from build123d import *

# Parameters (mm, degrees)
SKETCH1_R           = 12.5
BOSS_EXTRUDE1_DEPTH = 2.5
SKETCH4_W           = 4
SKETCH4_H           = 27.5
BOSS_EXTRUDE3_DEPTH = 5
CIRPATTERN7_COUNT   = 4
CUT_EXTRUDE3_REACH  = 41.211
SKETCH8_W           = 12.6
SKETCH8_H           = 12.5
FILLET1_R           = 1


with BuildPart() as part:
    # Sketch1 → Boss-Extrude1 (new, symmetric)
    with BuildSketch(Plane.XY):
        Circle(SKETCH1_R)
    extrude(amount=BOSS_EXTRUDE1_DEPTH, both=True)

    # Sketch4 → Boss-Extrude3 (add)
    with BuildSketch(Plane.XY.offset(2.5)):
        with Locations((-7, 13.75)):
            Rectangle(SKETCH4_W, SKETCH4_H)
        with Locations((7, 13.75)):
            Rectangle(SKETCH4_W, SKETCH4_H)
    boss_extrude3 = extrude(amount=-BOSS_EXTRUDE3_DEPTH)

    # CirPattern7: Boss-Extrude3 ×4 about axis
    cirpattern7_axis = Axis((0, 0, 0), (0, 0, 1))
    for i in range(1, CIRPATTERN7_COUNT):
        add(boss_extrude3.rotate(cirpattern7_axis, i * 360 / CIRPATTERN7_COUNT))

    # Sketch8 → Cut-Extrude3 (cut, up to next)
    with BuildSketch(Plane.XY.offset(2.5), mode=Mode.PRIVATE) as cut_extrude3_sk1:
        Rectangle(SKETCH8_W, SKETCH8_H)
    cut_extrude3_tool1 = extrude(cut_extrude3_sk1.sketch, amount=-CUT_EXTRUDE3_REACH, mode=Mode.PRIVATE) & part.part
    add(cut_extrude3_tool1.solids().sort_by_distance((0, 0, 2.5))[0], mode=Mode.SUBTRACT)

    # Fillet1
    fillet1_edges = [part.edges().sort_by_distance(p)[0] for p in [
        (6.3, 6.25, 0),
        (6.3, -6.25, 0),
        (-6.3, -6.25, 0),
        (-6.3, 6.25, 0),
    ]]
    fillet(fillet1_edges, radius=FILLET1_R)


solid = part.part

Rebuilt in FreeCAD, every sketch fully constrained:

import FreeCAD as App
import Part
import Sketcher


def edges_at(feature, points):
    """Names of the edges that pass closest to the given points."""
    edges = feature.Shape.Edges
    near = lambda p: min(range(len(edges)), key=lambda i: edges[i].distToShape(Part.Vertex(*p))[0])
    return sorted({f"Edge{near(p) + 1}" for p in points})

doc = App.newDocument("Part")
body = doc.addObject("PartDesign::Body", "Body")

sketch1 = doc.addObject("Sketcher::SketchObject", "Sketch")
body.addObject(sketch1)
sketch1.AttachmentSupport = (doc.XY_Plane, [""])
sketch1.MapMode = "FlatFace"
sketch1.addGeometry(Part.Circle(App.Vector(0, 0, 0), App.Vector(0, 0, 1), 12), False)
sketch1.addConstraint([
    Sketcher.Constraint("Coincident", 0, 3, -1, 1),
    Sketcher.Constraint("Diameter", 0, 25.0),
])
pad1 = doc.addObject("PartDesign::Pad", "Pad")
body.addObject(pad1)
pad1.Profile = sketch1
pad1.Length = 5
pad1.Midplane = True

sketch2 = doc.addObject("Sketcher::SketchObject", "Sketch001")
body.addObject(sketch2)
sketch2.AttachmentSupport = (doc.XY_Plane, [""])
sketch2.MapMode = "FlatFace"
sketch2.AttachmentOffset = App.Placement(App.Vector(0, 0, 2.5), App.Rotation())
sketch2.addGeometry([
    Part.LineSegment(App.Vector(-9, 27.5, 0), App.Vector(-9, 0, 0)),
    Part.LineSegment(App.Vector(-9, 0, 0), App.Vector(-5, 0, 0)),
    Part.LineSegment(App.Vector(-5, 0, 0), App.Vector(-5, 27.5, 0)),
    Part.LineSegment(App.Vector(-5, 27.5, 0), App.Vector(-9, 27.5, 0)),
    Part.LineSegment(App.Vector(5, 27.5, 0), App.Vector(5, 0, 0)),
    Part.LineSegment(App.Vector(5, 0, 0), App.Vector(9, 0, 0)),
    Part.LineSegment(App.Vector(9, 0, 0), App.Vector(9, 27.5, 0)),
    Part.LineSegment(App.Vector(9, 27.5, 0), App.Vector(5, 27.5, 0)),
], False)
sketch2.addConstraint([
    Sketcher.Constraint("Coincident", 0, 2, 1, 1),
    Sketcher.Constraint("Coincident", 1, 2, 2, 1),
    Sketcher.Constraint("Coincident", 2, 2, 3, 1),
    Sketcher.Constraint("Coincident", 3, 2, 0, 1),
    Sketcher.Constraint("Coincident", 4, 2, 5, 1),
    Sketcher.Constraint("Coincident", 5, 2, 6, 1),
    Sketcher.Constraint("Coincident", 6, 2, 7, 1),
    Sketcher.Constraint("Coincident", 7, 2, 4, 1),
    Sketcher.Constraint("Vertical", 0),
    Sketcher.Constraint("Horizontal", 1),
    Sketcher.Constraint("Vertical", 2),
    Sketcher.Constraint("Horizontal", 3),
    Sketcher.Constraint("Vertical", 4),
    Sketcher.Constraint("Horizontal", 5),
    Sketcher.Constraint("Vertical", 6),
    Sketcher.Constraint("Horizontal", 7),
    Sketcher.Constraint("Symmetric", 1, 2, 4, 2, -1, 1),
    Sketcher.Constraint("Symmetric", 0, 2, 5, 2, -2),
    Sketcher.Constraint("Horizontal", 3, 2, 6, 2),
    Sketcher.Constraint("DistanceX", 1, 1, 1, 2, 4.0),
    Sketcher.Constraint("DistanceY", 0, 2, 0, 1, 27.5),
    Sketcher.Constraint("DistanceX", 0, 2, -1, 1, 9.0),
])
pad2 = doc.addObject("PartDesign::Pad", "Pad001")
body.addObject(pad2)
pad2.Profile = sketch2
pad2.Length = 5
pad2.Reversed = True
doc.recompute()

polarpattern = doc.addObject("PartDesign::PolarPattern", "PolarPattern")
body.addObject(polarpattern)
polarpattern.Originals = [pad2]
polarpattern.Axis = (doc.Z_Axis, [""])
polarpattern.Angle = 360
polarpattern.Occurrences = 4
body.Tip = polarpattern

sketch3 = doc.addObject("Sketcher::SketchObject", "Sketch002")
body.addObject(sketch3)
sketch3.AttachmentSupport = (doc.XY_Plane, [""])
sketch3.MapMode = "FlatFace"
sketch3.AttachmentOffset = App.Placement(App.Vector(0, 0, 2.5), App.Rotation())
sketch3.addGeometry([
    Part.LineSegment(App.Vector(-6, 6, 0), App.Vector(-6, -6, 0)),
    Part.LineSegment(App.Vector(-6, -6, 0), App.Vector(6, -6, 0)),
    Part.LineSegment(App.Vector(6, -6, 0), App.Vector(6, 6, 0)),
    Part.LineSegment(App.Vector(6, 6, 0), App.Vector(-6, 6, 0)),
], False)
sketch3.addConstraint([
    Sketcher.Constraint("Coincident", 0, 2, 1, 1),
    Sketcher.Constraint("Coincident", 1, 2, 2, 1),
    Sketcher.Constraint("Coincident", 2, 2, 3, 1),
    Sketcher.Constraint("Coincident", 3, 2, 0, 1),
    Sketcher.Constraint("Vertical", 0),
    Sketcher.Constraint("Horizontal", 1),
    Sketcher.Constraint("Vertical", 2),
    Sketcher.Constraint("Horizontal", 3),
    Sketcher.Constraint("Symmetric", 0, 2, 2, 2, -1, 1),
    Sketcher.Constraint("DistanceX", 1, 1, 1, 2, 12.6),
    Sketcher.Constraint("DistanceY", 0, 2, 0, 1, 12.5),
])
pocket1 = doc.addObject("PartDesign::Pocket", "Pocket")
body.addObject(pocket1)
pocket1.Profile = sketch3
pocket1.Type = "UpToFirst"
doc.recompute()

fillet = doc.addObject("PartDesign::Fillet", "Fillet")
body.addObject(fillet)
fillet.Base = (pocket1, edges_at(pocket1, [
    (6.3, 6.25, 0),
    (6.3, -6.25, 0),
    (-6.3, -6.25, 0),
    (-6.3, 6.25, 0),
]))
fillet.Radius = 1

doc.recompute()
